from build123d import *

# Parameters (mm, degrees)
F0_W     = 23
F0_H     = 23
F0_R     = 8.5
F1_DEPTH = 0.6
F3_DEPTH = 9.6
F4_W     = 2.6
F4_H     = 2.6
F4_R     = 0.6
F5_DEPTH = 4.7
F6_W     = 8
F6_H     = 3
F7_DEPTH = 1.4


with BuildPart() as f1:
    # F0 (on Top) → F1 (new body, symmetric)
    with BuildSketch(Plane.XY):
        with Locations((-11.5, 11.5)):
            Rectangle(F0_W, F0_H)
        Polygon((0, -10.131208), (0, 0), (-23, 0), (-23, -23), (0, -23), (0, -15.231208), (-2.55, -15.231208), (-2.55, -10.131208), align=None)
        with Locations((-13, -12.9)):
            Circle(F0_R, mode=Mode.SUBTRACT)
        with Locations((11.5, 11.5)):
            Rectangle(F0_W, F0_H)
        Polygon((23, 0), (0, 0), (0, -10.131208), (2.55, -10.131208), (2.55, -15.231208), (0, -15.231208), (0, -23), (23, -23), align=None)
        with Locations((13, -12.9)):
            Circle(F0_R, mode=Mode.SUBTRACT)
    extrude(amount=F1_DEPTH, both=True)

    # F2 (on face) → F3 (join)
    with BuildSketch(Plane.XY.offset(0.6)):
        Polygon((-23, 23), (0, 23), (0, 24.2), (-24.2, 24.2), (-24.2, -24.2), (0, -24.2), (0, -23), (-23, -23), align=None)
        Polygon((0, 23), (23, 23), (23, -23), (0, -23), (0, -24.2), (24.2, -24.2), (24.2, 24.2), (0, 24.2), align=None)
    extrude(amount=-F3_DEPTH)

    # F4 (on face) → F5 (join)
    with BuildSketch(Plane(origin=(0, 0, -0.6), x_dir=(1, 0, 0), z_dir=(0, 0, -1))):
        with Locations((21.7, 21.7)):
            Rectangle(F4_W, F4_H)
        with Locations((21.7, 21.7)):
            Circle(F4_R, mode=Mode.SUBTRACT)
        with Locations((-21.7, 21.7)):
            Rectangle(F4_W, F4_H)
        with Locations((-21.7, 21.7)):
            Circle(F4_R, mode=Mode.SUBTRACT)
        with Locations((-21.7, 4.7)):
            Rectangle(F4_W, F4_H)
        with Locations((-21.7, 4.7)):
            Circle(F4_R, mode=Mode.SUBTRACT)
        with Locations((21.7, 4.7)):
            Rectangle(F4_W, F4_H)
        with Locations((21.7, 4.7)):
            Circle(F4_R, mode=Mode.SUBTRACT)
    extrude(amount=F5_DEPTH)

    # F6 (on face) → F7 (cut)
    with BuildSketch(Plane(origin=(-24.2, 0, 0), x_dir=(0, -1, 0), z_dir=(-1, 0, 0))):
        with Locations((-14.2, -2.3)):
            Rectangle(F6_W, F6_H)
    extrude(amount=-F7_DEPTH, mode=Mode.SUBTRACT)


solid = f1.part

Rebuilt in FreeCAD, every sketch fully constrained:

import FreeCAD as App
import Part
import Sketcher
from FreeCAD import Vector


def add_polygon(sketch, points):
    """Adds a closed chain of lines whose ends are joined by coincident constraints."""
    first, n = sketch.GeometryCount, len(points)
    for a, b in zip(points, points[1:] + points[:1]):
        sketch.addGeometry(Part.LineSegment(App.Vector(*a, 0), App.Vector(*b, 0)), False)
    for i in range(n):
        sketch.addConstraint(Sketcher.Constraint("Coincident", first + i, 2, first + (i + 1) % n, 1))

doc = App.newDocument("Part")
body = doc.addObject("PartDesign::Body", "Body")

# Sketch on XY plane
sketch1 = doc.addObject("Sketcher::SketchObject", "Sketch")
body.addObject(sketch1)
sketch1.AttachmentSupport = (doc.XY_Plane, [""])
sketch1.MapMode = "FlatFace"
add_polygon(sketch1, [(-23, 23), (-23, -23), (23, -23), (23, 23)])  # lines 0-3
sketch1.addGeometry(Part.Circle(Vector(-13, -13, 0), Vector(0, 0, 1), 8), False)  # 4
add_polygon(sketch1, [(-3, -15), (-3, -10), (3, -10), (3, -15)])  # lines 5-8
sketch1.addGeometry(Part.Circle(Vector(13, -13, 0), Vector(0, 0, 1), 8), False)  # 9
sketch1.addConstraint([
    Sketcher.Constraint("Vertical", 0),
    Sketcher.Constraint("Horizontal", 1),
    Sketcher.Constraint("Vertical", 2),
    Sketcher.Constraint("Horizontal", 3),
    Sketcher.Constraint("Vertical", 5),
    Sketcher.Constraint("Horizontal", 6),
    Sketcher.Constraint("Vertical", 7),
    Sketcher.Constraint("Horizontal", 8),
    Sketcher.Constraint("Equal", 4, 9),
    Sketcher.Constraint("Symmetric", 0, 2, 2, 2, -1, 1),
    Sketcher.Constraint("Symmetric", 4, 3, 9, 3, -2),
    Sketcher.Constraint("Equal", 3, 0),
    Sketcher.Constraint("Equal", 8, 5),
    Sketcher.Constraint("Diameter", 4, 17.0),
    Sketcher.Constraint("DistanceX", 1, 1, 1, 2, 46.0),
    Sketcher.Constraint("DistanceX", 6, 1, 6, 2, 5.1),
    Sketcher.Constraint("DistanceX", 4, 3, -1, 1, 13.0),
    Sketcher.Constraint("DistanceY", 4, 3, -1, 1, 12.9),
    Sketcher.Constraint("DistanceX", 5, 2, -1, 1, 2.55),
    Sketcher.Constraint("DistanceY", 5, 2, -1, 1, 10.131208),
])
pad1 = doc.addObject("PartDesign::Pad", "Pad")
body.addObject(pad1)
pad1.Profile = sketch1
pad1.Length = 1.2
pad1.Midplane = True

# Sketch on XY plane
sketch2 = doc.addObject("Sketcher::SketchObject", "Sketch001")
body.addObject(sketch2)
sketch2.AttachmentSupport = (doc.XY_Plane, [""])
sketch2.MapMode = "FlatFace"
sketch2.AttachmentOffset = App.Placement(Vector(0, 0, 0.6), App.Rotation())
add_polygon(sketch2, [(-24, 24), (-24, -24), (24, -24), (24, 24)])  # lines 0-3
add_polygon(sketch2, [(-23, 23), (23, 23), (23, -23), (-23, -23)])  # lines 4-7
sketch2.addConstraint([
    Sketcher.Constraint("Vertical", 0),
    Sketcher.Constraint("Horizontal", 1),
    Sketcher.Constraint("Vertical", 2),
    Sketcher.Constraint("Horizontal", 3),
    Sketcher.Constraint("Horizontal", 4),
    Sketcher.Constraint("Vertical", 5),
    Sketcher.Constraint("Horizontal", 6),
    Sketcher.Constraint("Vertical", 7),
    Sketcher.Constraint("Symmetric", 0, 2, 2, 2, -1, 1),
    Sketcher.Constraint("Symmetric", 4, 2, 6, 2, -1, 1),
    Sketcher.Constraint("Equal", 3, 0),
    Sketcher.Constraint("Equal", 6, 5),
    Sketcher.Constraint("DistanceX", 4, 1, 4, 2, 46.0),
    Sketcher.Constraint("DistanceX", 1, 1, 1, 2, 48.4),
])
pad2 = doc.addObject("PartDesign::Pad", "Pad001")
body.addObject(pad2)
pad2.Profile = sketch2
pad2.Length = 9.6
pad2.Reversed = True

# Sketch on XY plane
sketch3 = doc.addObject("Sketcher::SketchObject", "Sketch002")
body.addObject(sketch3)
sketch3.AttachmentSupport = (doc.XY_Plane, [""])
sketch3.MapMode = "FlatFace"
sketch3.AttachmentOffset = App.Placement(Vector(0, 0, -0.6), App.Rotation())
add_polygon(sketch3, [(20.4, -23), (20.4, -20.4), (23, -20.4), (23, -23)])  # lines 0-3
sketch3.addGeometry(Part.Circle(Vector(21.7, -21.7, 0), Vector(0, 0, 1), 0.6), False)  # 4
add_polygon(sketch3, [(-23, -23), (-23, -20.4), (-20.4, -20.4), (-20.4, -23)])  # lines 5-8
sketch3.addGeometry(Part.Circle(Vector(-21.7, -21.7, 0), Vector(0, 0, 1), 0.6), False)  # 9
add_polygon(sketch3, [(-23, -6), (-23, -3.4), (-20.4, -3.4), (-20.4, -6)])  # lines 10-13
sketch3.addGeometry(Part.Circle(Vector(-21.7, -4.7, 0), Vector(0, 0, 1), 0.6), False)  # 14
add_polygon(sketch3, [(20.4, -6), (20.4, -3.4), (23, -3.4), (23, -6)])  # lines 15-18
sketch3.addGeometry(Part.Circle(Vector(21.7, -4.7, 0), Vector(0, 0, 1), 0.6), False)  # 19
sketch3.addConstraint([
    Sketcher.Constraint("Vertical", 0),
    Sketcher.Constraint("Horizontal", 1),
    Sketcher.Constraint("Vertical", 2),
    Sketcher.Constraint("Horizontal", 3),
    Sketcher.Constraint("Vertical", 5),
    Sketcher.Constraint("Horizontal", 6),
    Sketcher.Constraint("Vertical", 7),
    Sketcher.Constraint("Horizontal", 8),
    Sketcher.Constraint("Vertical", 10),
    Sketcher.Constraint("Horizontal", 11),
    Sketcher.Constraint("Vertical", 12),
    Sketcher.Constraint("Horizontal", 13),
    Sketcher.Constraint("Vertical", 15),
    Sketcher.Constraint("Horizontal", 16),
    Sketcher.Constraint("Vertical", 17),
    Sketcher.Constraint("Horizontal", 18),
    Sketcher.Constraint("Equal", 4, 9),
    Sketcher.Constraint("Equal", 9, 14),
    Sketcher.Constraint("Equal", 14, 19),
    Sketcher.Constraint("Symmetric", 4, 3, 9, 3, -2),
    Sketcher.Constraint("Symmetric", 14, 3, 19, 3, -2),
    Sketcher.Constraint("Symmetric", 1, 2, 5, 2, -2),
    Sketcher.Constraint("Symmetric", 3, 2, 7, 2, -2),
    Sketcher.Constraint("Symmetric", 11, 2, 15, 2, -2),
    Sketcher.Constraint("Symmetric", 13, 2, 17, 2, -2),
    Sketcher.Constraint("Vertical", 9, 3, 14, 3),
    Sketcher.Constraint("Vertical", 8, 2, 10, 2),
    Sketcher.Constraint("Vertical", 7, 2, 11, 2),
    Sketcher.Constraint("Equal", 18, 0),
    Sketcher.Constraint("Equal", 7, 10),
    Sketcher.Constraint("Diameter", 4, 1.2),
    Sketcher.Constraint("DistanceX", 1, 1, 1, 2, 2.6),
    Sketcher.Constraint("DistanceX", -1, 1, 1, 2, 23.0),
    Sketcher.Constraint("DistanceY", 2, 2, -1, 1, 23.0),
    Sketcher.Constraint("DistanceY", 12, 2, -1, 1, 6.0),
    Sketcher.Constraint("DistanceY", 9, 3, 14, 3, 17.0),
    Sketcher.Constraint("DistanceX", -1, 1, 4, 3, 21.7),
    Sketcher.Constraint("DistanceY", 4, 3, -1, 1, 21.7),
])
pad3 = doc.addObject("PartDesign::Pad", "Pad002")
body.addObject(pad3)
pad3.Profile = sketch3
pad3.Length = 4.7
pad3.Reversed = True

# Sketch on YZ plane
sketch4 = doc.addObject("Sketcher::SketchObject", "Sketch003")
body.addObject(sketch4)
sketch4.AttachmentSupport = (doc.YZ_Plane, [""])
sketch4.MapMode = "FlatFace"
sketch4.AttachmentOffset = App.Placement(Vector(0, 0, -24.2), App.Rotation())
add_polygon(sketch4, [(18.2, -0.8), (18.2, -3.8), (10.2, -3.8), (10.2, -0.8)])  # lines 0-3
sketch4.addConstraint([
    Sketcher.Constraint("Vertical", 0),
    Sketcher.Constraint("Horizontal", 1),
    Sketcher.Constraint("Vertical", 2),
    Sketcher.Constraint("Horizontal", 3),
    Sketcher.Constraint("DistanceX", 1, 2, 1, 1, 8.0),
    Sketcher.Constraint("DistanceY", 0, 2, 0, 1, 3.0),
    Sketcher.Constraint("DistanceX", -1, 1, 0, 2, 18.2),
    Sketcher.Constraint("DistanceY", 0, 2, -1, 1, 3.8),
])
pocket1 = doc.addObject("PartDesign::Pocket", "Pocket")
body.addObject(pocket1)
pocket1.Profile = sketch4
pocket1.Length = 1.4
pocket1.Reversed = True

doc.recompute()
